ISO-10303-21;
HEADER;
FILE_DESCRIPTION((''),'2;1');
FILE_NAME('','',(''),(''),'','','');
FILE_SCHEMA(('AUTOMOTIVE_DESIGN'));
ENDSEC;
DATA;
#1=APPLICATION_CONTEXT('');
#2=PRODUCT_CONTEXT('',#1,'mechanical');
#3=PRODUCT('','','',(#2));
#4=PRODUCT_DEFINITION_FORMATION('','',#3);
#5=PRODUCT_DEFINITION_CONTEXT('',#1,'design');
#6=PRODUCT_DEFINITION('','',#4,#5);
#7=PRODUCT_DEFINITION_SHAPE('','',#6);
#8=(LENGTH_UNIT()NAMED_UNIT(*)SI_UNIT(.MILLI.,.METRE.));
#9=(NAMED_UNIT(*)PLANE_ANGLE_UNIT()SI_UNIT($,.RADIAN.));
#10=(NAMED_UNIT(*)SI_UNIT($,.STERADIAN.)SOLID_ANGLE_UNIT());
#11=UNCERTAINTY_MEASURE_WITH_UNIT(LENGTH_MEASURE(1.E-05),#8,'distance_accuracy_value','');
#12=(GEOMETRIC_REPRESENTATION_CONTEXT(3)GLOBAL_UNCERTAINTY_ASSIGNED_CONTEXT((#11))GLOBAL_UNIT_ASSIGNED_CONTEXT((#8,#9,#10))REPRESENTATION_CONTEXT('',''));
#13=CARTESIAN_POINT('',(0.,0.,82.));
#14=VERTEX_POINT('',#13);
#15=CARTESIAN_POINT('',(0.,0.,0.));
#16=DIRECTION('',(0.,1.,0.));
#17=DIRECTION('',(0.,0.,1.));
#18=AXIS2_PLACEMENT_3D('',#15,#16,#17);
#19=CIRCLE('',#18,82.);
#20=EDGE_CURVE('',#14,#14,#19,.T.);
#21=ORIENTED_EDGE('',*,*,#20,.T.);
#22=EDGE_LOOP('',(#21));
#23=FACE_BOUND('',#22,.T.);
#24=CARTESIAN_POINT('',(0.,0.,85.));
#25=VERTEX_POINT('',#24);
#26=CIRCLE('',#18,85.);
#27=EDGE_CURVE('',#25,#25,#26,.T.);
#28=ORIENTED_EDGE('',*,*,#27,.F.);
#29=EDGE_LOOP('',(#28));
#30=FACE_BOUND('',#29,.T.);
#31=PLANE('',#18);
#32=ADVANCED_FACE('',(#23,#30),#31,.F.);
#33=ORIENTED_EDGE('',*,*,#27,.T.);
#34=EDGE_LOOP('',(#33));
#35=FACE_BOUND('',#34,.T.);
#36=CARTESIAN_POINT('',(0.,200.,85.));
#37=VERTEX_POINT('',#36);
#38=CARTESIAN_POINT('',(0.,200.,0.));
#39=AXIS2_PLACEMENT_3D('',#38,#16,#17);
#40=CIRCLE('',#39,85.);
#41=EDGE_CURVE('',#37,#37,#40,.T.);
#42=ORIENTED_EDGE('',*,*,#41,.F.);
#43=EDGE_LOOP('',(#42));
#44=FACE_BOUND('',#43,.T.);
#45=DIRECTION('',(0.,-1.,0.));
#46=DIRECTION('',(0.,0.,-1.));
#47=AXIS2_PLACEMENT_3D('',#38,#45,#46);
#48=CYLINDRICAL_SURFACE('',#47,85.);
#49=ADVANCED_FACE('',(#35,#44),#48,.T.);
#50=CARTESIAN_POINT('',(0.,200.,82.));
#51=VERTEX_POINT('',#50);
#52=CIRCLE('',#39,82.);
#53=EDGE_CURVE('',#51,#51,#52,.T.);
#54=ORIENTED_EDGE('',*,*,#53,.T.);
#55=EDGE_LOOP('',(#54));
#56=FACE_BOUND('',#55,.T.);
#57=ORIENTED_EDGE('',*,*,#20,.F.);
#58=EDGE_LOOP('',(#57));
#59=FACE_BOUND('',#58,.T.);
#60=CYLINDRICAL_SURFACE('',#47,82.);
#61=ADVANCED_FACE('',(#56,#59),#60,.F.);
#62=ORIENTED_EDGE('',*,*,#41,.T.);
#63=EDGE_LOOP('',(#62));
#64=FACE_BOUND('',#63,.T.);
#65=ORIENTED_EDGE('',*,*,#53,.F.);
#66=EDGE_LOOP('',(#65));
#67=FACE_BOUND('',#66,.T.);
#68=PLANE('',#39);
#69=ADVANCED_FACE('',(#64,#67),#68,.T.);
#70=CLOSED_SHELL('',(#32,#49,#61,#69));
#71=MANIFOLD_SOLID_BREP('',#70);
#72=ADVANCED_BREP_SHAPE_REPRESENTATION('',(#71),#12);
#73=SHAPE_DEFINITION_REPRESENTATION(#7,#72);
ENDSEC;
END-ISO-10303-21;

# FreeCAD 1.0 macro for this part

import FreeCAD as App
import Part
import Sketcher
Q = App.Units.Quantity

doc = App.newDocument("Part")
body = doc.addObject("PartDesign::Body", "Body")

sketch1 = body.newObject("Sketcher::SketchObject", "Sketch")
sketch1.AttachmentSupport = (doc.getObject("XZ_Plane"), [""])
sketch1.MapMode = "FlatFace"
sketch1.addGeometry(Part.Circle(App.Vector(0, 0, 0), App.Vector(0, 0, 1), 85), False)
sketch1.addGeometry(Part.Circle(App.Vector(0, 0, 0), App.Vector(0, 0, 1), 82), False)
sketch1.addConstraint(Sketcher.Constraint("Coincident", 0, 3, -1, 1))
sketch1.addConstraint(Sketcher.Constraint("Coincident", 1, 3, -1, 1))
sketch1.addConstraint(Sketcher.Constraint("Diameter", 0, Q("170 mm")))
sketch1.addConstraint(Sketcher.Constraint("Diameter", 1, Q("164 mm")))
pad1 = body.newObject("PartDesign::Pad", "Pad")
pad1.Profile = sketch1
pad1.Length = 200
pad1.Reversed = True

doc.recompute()
